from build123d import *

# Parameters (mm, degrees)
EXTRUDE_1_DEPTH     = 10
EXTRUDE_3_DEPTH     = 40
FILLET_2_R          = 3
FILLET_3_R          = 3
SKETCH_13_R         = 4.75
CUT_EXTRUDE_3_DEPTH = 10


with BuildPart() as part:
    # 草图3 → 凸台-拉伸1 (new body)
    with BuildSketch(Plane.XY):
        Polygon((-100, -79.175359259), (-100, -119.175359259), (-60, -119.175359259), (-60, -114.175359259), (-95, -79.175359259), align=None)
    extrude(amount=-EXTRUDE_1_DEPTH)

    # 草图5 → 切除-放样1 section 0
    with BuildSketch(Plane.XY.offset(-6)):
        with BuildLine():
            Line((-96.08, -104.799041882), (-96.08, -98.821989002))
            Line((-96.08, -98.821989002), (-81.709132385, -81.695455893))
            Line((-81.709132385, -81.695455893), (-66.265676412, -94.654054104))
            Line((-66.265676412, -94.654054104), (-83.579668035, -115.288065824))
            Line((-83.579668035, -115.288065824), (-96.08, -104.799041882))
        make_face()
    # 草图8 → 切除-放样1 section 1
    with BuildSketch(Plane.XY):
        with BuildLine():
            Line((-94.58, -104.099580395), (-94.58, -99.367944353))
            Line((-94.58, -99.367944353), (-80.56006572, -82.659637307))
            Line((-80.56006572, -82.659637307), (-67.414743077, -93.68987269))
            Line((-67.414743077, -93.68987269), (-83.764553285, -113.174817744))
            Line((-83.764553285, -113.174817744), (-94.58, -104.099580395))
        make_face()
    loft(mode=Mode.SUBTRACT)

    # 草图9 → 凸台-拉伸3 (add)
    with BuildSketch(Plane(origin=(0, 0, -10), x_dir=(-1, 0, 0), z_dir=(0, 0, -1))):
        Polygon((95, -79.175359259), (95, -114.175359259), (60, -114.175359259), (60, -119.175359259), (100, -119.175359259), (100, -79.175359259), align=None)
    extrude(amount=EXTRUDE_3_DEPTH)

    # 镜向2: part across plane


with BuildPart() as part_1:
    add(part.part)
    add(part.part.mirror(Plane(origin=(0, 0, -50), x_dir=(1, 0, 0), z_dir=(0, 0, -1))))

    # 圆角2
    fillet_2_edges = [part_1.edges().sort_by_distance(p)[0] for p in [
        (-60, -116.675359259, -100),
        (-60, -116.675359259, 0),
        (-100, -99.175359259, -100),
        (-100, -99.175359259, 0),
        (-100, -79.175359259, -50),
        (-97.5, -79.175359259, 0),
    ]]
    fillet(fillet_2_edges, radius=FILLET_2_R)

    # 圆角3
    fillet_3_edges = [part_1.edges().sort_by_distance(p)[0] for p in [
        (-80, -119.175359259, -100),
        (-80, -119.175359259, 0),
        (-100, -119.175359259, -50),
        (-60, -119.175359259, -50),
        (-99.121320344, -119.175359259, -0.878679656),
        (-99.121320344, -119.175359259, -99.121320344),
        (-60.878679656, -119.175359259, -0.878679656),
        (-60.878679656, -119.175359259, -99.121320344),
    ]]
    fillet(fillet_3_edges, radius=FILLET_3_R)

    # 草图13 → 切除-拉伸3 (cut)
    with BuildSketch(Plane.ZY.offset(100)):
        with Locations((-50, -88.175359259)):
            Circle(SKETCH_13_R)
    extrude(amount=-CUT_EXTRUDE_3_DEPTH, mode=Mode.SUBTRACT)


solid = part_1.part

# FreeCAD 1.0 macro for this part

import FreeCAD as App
import Part
import Sketcher
from FreeCAD import Vector
Q = App.Units.Quantity


def edges_at(feature, points):
    """Names of the edges that pass closest to the given points."""
    edges = feature.Shape.Edges
    near = lambda p: min(range(len(edges)), key=lambda i: edges[i].distToShape(Part.Vertex(*p))[0])
    return sorted({f"Edge{near(p) + 1}" for p in points})

doc = App.newDocument("Part")
body = doc.addObject("PartDesign::Body", "Body")

sketch1 = body.newObject("Sketcher::SketchObject", "Sketch")
sketch1.AttachmentSupport = (doc.getObject("XY_Plane"), [""])
sketch1.MapMode = "FlatFace"
sketch1.addGeometry([
    Part.LineSegment(Vector(-100, -79.175359, 0), Vector(-100, -119.175359, 0)),
    Part.LineSegment(Vector(-100, -119.175359, 0), Vector(-60, -119.175359, 0)),
    Part.LineSegment(Vector(-60, -119.175359, 0), Vector(-60, -114.175359, 0)),
    Part.LineSegment(Vector(-60, -114.175359, 0), Vector(-95, -79.175359, 0)),
    Part.LineSegment(Vector(-95, -79.175359, 0), Vector(-100, -79.175359, 0)),
], False)
sketch1.addConstraint([
    Sketcher.Constraint("Coincident", 0, 2, 1, 1),
    Sketcher.Constraint("Coincident", 1, 2, 2, 1),
    Sketcher.Constraint("Coincident", 2, 2, 3, 1),
    Sketcher.Constraint("Coincident", 3, 2, 4, 1),
    Sketcher.Constraint("Coincident", 4, 2, 0, 1),
    Sketcher.Constraint("Vertical", 0),
    Sketcher.Constraint("Horizontal", 1),
    Sketcher.Constraint("Vertical", 2),
    Sketcher.Constraint("Horizontal", 4),
    Sketcher.Constraint("Equal", 1, 0),
    Sketcher.Constraint("Equal", 4, 2),
    Sketcher.Constraint("DistanceX", 1, 1, 1, 2, 40.0),
    Sketcher.Constraint("DistanceX", 4, 2, 4, 1, 5.0),
    Sketcher.Constraint("DistanceX", 0, 2, -1, 1, 100.0),
    Sketcher.Constraint("DistanceY", 0, 2, -1, 1, 119.175359),
])
pad1 = body.newObject("PartDesign::Pad", "Pad")
pad1.Profile = sketch1
pad1.Length = 10
pad1.Reversed = True

sketch2 = body.newObject("Sketcher::SketchObject", "Sketch001")
sketch2.AttachmentSupport = (doc.getObject("XY_Plane"), [""])
sketch2.MapMode = "FlatFace"
sketch2.AttachmentOffset = App.Placement(Vector(0, 0, -6), App.Rotation())
sketch2.addGeometry([
    Part.LineSegment(Vector(-96.08, -98.821989, 0), Vector(-96.08, -104.799042, 0)),
    Part.LineSegment(Vector(-96.08, -104.799042, 0), Vector(-83.579668, -115.288066, 0)),
    Part.LineSegment(Vector(-83.579668, -115.288066, 0), Vector(-66.265676, -94.654054, 0)),
    Part.LineSegment(Vector(-66.265676, -94.654054, 0), Vector(-81.709132, -81.695456, 0)),
    Part.LineSegment(Vector(-81.709132, -81.695456, 0), Vector(-96.08, -98.821989, 0)),
], False)
sketch2.addConstraint([
    Sketcher.Constraint("Coincident", 0, 2, 1, 1),
    Sketcher.Constraint("Coincident", 1, 2, 2, 1),
    Sketcher.Constraint("Coincident", 2, 2, 3, 1),
    Sketcher.Constraint("Coincident", 3, 2, 4, 1),
    Sketcher.Constraint("Coincident", 4, 2, 0, 1),
    Sketcher.Constraint("Vertical", 0),
    Sketcher.Constraint("Perpendicular", 1, 2),
    Sketcher.Constraint("Perpendicular", 2, 3),
    Sketcher.Constraint("Perpendicular", 3, 4),
    Sketcher.Constraint("Angle", 1, Q("-40 deg")),
    Sketcher.Constraint("Distance", 3, 20.16),
    Sketcher.Constraint("DistanceX", 0, 2, -1, 1, 96.08),
    Sketcher.Constraint("Distance", 4, 22.357101),
    Sketcher.Constraint("Distance", 2, 26.935789),
    Sketcher.Constraint("DistanceY", 0, 2, -1, 1, 104.799042),
])

sketch3 = body.newObject("Sketcher::SketchObject", "Sketch002")
sketch3.AttachmentSupport = (doc.getObject("XY_Plane"), [""])
sketch3.MapMode = "FlatFace"
sketch3.addGeometry([
    Part.LineSegment(Vector(-94.58, -99.367944, 0), Vector(-94.58, -104.09958, 0)),
    Part.LineSegment(Vector(-94.58, -104.09958, 0), Vector(-83.764553, -113.174818, 0)),
    Part.LineSegment(Vector(-83.764553, -113.174818, 0), Vector(-67.414743, -93.689873, 0)),
    Part.LineSegment(Vector(-67.414743, -93.689873, 0), Vector(-80.560066, -82.659637, 0)),
    Part.LineSegment(Vector(-80.560066, -82.659637, 0), Vector(-94.58, -99.367944, 0)),
], False)
sketch3.addConstraint([
    Sketcher.Constraint("Coincident", 0, 2, 1, 1),
    Sketcher.Constraint("Coincident", 1, 2, 2, 1),
    Sketcher.Constraint("Coincident", 2, 2, 3, 1),
    Sketcher.Constraint("Coincident", 3, 2, 4, 1),
    Sketcher.Constraint("Coincident", 4, 2, 0, 1),
    Sketcher.Constraint("Vertical", 0),
    Sketcher.Constraint("Perpendicular", 1, 2),
    Sketcher.Constraint("Perpendicular", 2, 3),
    Sketcher.Constraint("Perpendicular", 3, 4),
    Sketcher.Constraint("Angle", 1, Q("-40 deg")),
    Sketcher.Constraint("Distance", 3, 17.16),
    Sketcher.Constraint("DistanceX", 0, 2, -1, 1, 94.58),
    Sketcher.Constraint("Distance", 2, 25.435789),
    Sketcher.Constraint("DistanceY", 0, 2, 0, 1, 4.731636),
    Sketcher.Constraint("DistanceY", 0, 2, -1, 1, 104.09958),
])

subtractiveloft = body.newObject("PartDesign::SubtractiveLoft", "SubtractiveLoft")
subtractiveloft.Profile = sketch2
subtractiveloft.Sections = [sketch3]

sketch4 = body.newObject("Sketcher::SketchObject", "Sketch003")
sketch4.AttachmentSupport = (doc.getObject("XY_Plane"), [""])
sketch4.MapMode = "FlatFace"
sketch4.AttachmentOffset = App.Placement(Vector(0, 0, -10), App.Rotation())
sketch4.addGeometry([
    Part.LineSegment(Vector(-95, -79.175359, 0), Vector(-95, -114.175359, 0)),
    Part.LineSegment(Vector(-95, -114.175359, 0), Vector(-60, -114.175359, 0)),
    Part.LineSegment(Vector(-60, -114.175359, 0), Vector(-60, -119.175359, 0)),
    Part.LineSegment(Vector(-60, -119.175359, 0), Vector(-100, -119.175359, 0)),
    Part.LineSegment(Vector(-100, -119.175359, 0), Vector(-100, -79.175359, 0)),
    Part.LineSegment(Vector(-100, -79.175359, 0), Vector(-95, -79.175359, 0)),
], False)
sketch4.addConstraint([
    Sketcher.Constraint("Coincident", 0, 2, 1, 1),
    Sketcher.Constraint("Coincident", 1, 2, 2, 1),
    Sketcher.Constraint("Coincident", 2, 2, 3, 1),
    Sketcher.Constraint("Coincident", 3, 2, 4, 1),
    Sketcher.Constraint("Coincident", 4, 2, 5, 1),
    Sketcher.Constraint("Coincident", 5, 2, 0, 1),
    Sketcher.Constraint("Vertical", 0),
    Sketcher.Constraint("Horizontal", 1),
    Sketcher.Constraint("Vertical", 2),
    Sketcher.Constraint("Horizontal", 3),
    Sketcher.Constraint("Vertical", 4),
    Sketcher.Constraint("Horizontal", 5),
    Sketcher.Constraint("Equal", 1, 0),
    Sketcher.Constraint("Equal", 5, 2),
    Sketcher.Constraint("DistanceX", 1, 1, 1, 2, 35.0),
    Sketcher.Constraint("DistanceX", 3, 2, 3, 1, 40.0),
    Sketcher.Constraint("DistanceX", 0, 2, -1, 1, 95.0),
    Sketcher.Constraint("DistanceY", 0, 2, -1, 1, 114.175359),
])
pad2 = body.newObject("PartDesign::Pad", "Pad001")
pad2.Profile = sketch4
pad2.Length = 40
pad2.Reversed = True
body2 = doc.addObject("PartDesign::Body", "Body001")
doc.recompute()

body2.BaseFeature = body
doc.recompute()

mirroring = doc.addObject("Part::Mirroring", "Mirroring")
mirroring.Source = body
mirroring.Base = Vector(0, 0, -50)
mirroring.Normal = Vector(0, 0, -1)
body3 = doc.addObject("PartDesign::Body", "Body002")
body3.BaseFeature = mirroring
boolean = body2.newObject("PartDesign::Boolean", "Boolean")
boolean.Type = "Fuse"
boolean.addObjects([body3])
doc.recompute()

fillet = body2.newObject("PartDesign::Fillet", "Fillet")
fillet.Base = (boolean, edges_at(boolean, [
    (-60, -116.675, -100),
    (-60, -116.675, 0),
    (-100, -99.175, -100),
    (-100, -99.175, 0),
    (-100, -79.175, -50),
    (-97.5, -79.175, 0),
]))
fillet.Radius = 3
doc.recompute()

fillet2 = body2.newObject("PartDesign::Fillet", "Fillet001")
fillet2.Base = (fillet, edges_at(fillet, [
    (-80, -119.175, -100),
    (-80, -119.175, 0),
    (-100, -119.175, -50),
    (-60, -119.175, -50),
    (-99.121, -119.175, -0.879),
    (-99.121, -119.175, -99.121),
    (-60.879, -119.175, -0.879),
    (-60.879, -119.175, -99.121),
]))
fillet2.Radius = 3

sketch5 = body2.newObject("Sketcher::SketchObject", "Sketch004")
sketch5.AttachmentSupport = (doc.getObject("YZ_Plane001"), [""])
sketch5.MapMode = "FlatFace"
sketch5.AttachmentOffset = App.Placement(Vector(0, 0, -100), App.Rotation())
sketch5.addGeometry(Part.Circle(Vector(-88.175359, -50, 0), Vector(0, 0, 1), 4.75), False)
sketch5.addConstraint([
    Sketcher.Constraint("Diameter", 0, 9.5),
    Sketcher.Constraint("DistanceY", 0, 3, -1, 1, 50.0),
    Sketcher.Constraint("DistanceX", 0, 3, -1, 1, 88.175359),
])
pocket1 = body2.newObject("PartDesign::Pocket", "Pocket")
pocket1.Profile = sketch5
pocket1.Length = 10
pocket1.Reversed = True
mirroring.Visibility = False

doc.recompute()
